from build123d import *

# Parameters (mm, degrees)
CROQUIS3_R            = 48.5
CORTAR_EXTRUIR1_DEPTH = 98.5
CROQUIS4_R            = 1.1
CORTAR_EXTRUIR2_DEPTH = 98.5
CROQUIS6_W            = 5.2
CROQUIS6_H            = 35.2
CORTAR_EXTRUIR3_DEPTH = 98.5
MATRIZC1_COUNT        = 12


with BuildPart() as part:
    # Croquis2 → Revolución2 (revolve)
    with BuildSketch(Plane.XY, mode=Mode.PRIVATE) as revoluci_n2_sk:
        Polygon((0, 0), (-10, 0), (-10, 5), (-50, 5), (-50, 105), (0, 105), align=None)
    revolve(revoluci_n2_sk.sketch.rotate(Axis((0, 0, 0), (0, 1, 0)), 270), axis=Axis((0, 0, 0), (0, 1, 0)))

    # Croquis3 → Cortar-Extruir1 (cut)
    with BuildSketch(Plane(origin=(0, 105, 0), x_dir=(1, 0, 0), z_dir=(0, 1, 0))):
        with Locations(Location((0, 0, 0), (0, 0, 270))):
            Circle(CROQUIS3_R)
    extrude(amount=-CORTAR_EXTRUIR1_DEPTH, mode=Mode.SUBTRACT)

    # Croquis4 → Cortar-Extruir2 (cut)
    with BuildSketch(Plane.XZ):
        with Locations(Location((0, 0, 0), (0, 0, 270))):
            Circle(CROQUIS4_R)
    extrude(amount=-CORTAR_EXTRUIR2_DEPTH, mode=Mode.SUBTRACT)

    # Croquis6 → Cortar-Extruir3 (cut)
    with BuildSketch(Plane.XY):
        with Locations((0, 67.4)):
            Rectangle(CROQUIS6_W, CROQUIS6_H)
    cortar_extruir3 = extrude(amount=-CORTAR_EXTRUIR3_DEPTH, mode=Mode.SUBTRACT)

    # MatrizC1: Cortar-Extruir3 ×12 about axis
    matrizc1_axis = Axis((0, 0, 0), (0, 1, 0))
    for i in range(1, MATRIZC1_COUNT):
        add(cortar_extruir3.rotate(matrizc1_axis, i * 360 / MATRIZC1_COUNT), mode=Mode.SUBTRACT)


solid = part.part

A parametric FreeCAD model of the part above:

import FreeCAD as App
import Part
import Sketcher

doc = App.newDocument("Part")
params = doc.addObject("Spreadsheet::Sheet", "Params")
for row, (alias, value) in enumerate([
    ("sketch1_width", "10 mm"),
    ("sketch1_width2", "50 mm"),
    ("sketch1_height", "105 mm"),
    ("sketch1_height2", "100 mm"),
    ("revolution_angle", "360 deg"),
    ("sketch2_diameter", "97 mm"),
    ("pocket1_length", "98.5 mm"),
    ("sketch3_diameter", "2.2 mm"),
    ("pocket2_length", "98.5 mm"),
    ("sketch4_width", "5.2 mm"),
    ("sketch4_height", "35.2 mm"),
    ("pocket3_length", "98.5 mm"),
], start=1):
    params.set(f"A{row}", alias)
    params.set(f"B{row}", "=" + value)
    params.setAlias(f"B{row}", alias)

body = doc.addObject("PartDesign::Body", "Body")

sketch1 = doc.addObject("Sketcher::SketchObject", "Sketch")
body.addObject(sketch1)
sketch1.AttachmentSupport = (doc.XY_Plane, [""])
sketch1.MapMode = "FlatFace"
sketch1.addGeometry([
    Part.LineSegment(App.Vector(-10, 0, 0), App.Vector(0, 0, 0)),
    Part.LineSegment(App.Vector(0, 0, 0), App.Vector(0, 105, 0)),
    Part.LineSegment(App.Vector(0, 105, 0), App.Vector(-50, 105, 0)),
    Part.LineSegment(App.Vector(-50, 105, 0), App.Vector(-50, 5, 0)),
    Part.LineSegment(App.Vector(-50, 5, 0), App.Vector(-10, 5, 0)),
    Part.LineSegment(App.Vector(-10, 5, 0), App.Vector(-10, 0, 0)),
], False)
sketch1.addConstraint([
    Sketcher.Constraint("Coincident", 0, 2, 1, 1),
    Sketcher.Constraint("Coincident", 1, 2, 2, 1),
    Sketcher.Constraint("Coincident", 2, 2, 3, 1),
    Sketcher.Constraint("Coincident", 3, 2, 4, 1),
    Sketcher.Constraint("Coincident", 4, 2, 5, 1),
    Sketcher.Constraint("Coincident", 5, 2, 0, 1),
    Sketcher.Constraint("Horizontal", 0),
    Sketcher.Constraint("Vertical", 1),
    Sketcher.Constraint("Horizontal", 2),
    Sketcher.Constraint("Vertical", 3),
    Sketcher.Constraint("Horizontal", 4),
    Sketcher.Constraint("Vertical", 5),
    Sketcher.Constraint("Coincident", 0, 2, -1, 1),
    Sketcher.Constraint("DistanceX", 0, 1, 0, 2, 10.0),
    Sketcher.Constraint("DistanceX", 2, 2, 2, 1, 50.0),
    Sketcher.Constraint("DistanceY", 1, 1, 1, 2, 105.0),
    Sketcher.Constraint("DistanceY", 3, 2, 3, 1, 100.0),
])
sketch1.setExpression("Constraints[13]", "Params.sketch1_width")
sketch1.setExpression("Constraints[14]", "Params.sketch1_width2")
sketch1.setExpression("Constraints[15]", "Params.sketch1_height")
sketch1.setExpression("Constraints[16]", "Params.sketch1_height2")
revolution = doc.addObject("PartDesign::Revolution", "Revolution")
body.addObject(revolution)
revolution.Profile = sketch1
revolution.ReferenceAxis = (sketch1, ["V_Axis"])
revolution.setExpression("Angle", "Params.revolution_angle")

sketch2 = doc.addObject("Sketcher::SketchObject", "Sketch001")
body.addObject(sketch2)
sketch2.AttachmentSupport = (doc.XZ_Plane, [""])
sketch2.MapMode = "FlatFace"
sketch2.AttachmentOffset = App.Placement(App.Vector(0, 0, -105), App.Rotation())
sketch2.addGeometry(Part.Circle(App.Vector(0, 0, 0), App.Vector(0, 0, 1), 48.5), False)
sketch2.addConstraint([
    Sketcher.Constraint("Coincident", 0, 3, -1, 1),
    Sketcher.Constraint("Diameter", 0, 97.0),
])
sketch2.setExpression("Constraints[1]", "Params.sketch2_diameter")
pocket1 = doc.addObject("PartDesign::Pocket", "Pocket")
body.addObject(pocket1)
pocket1.Profile = sketch2
pocket1.setExpression("Length", "Params.pocket1_length")
pocket1.Reversed = True

sketch3 = doc.addObject("Sketcher::SketchObject", "Sketch002")
body.addObject(sketch3)
sketch3.AttachmentSupport = (doc.XZ_Plane, [""])
sketch3.MapMode = "FlatFace"
sketch3.addGeometry(Part.Circle(App.Vector(0, 0, 0), App.Vector(0, 0, 1), 1.1), False)
sketch3.addConstraint([
    Sketcher.Constraint("Coincident", 0, 3, -1, 1),
    Sketcher.Constraint("Diameter", 0, 2.2),
])
sketch3.setExpression("Constraints[1]", "Params.sketch3_diameter")
pocket2 = doc.addObject("PartDesign::Pocket", "Pocket001")
body.addObject(pocket2)
pocket2.Profile = sketch3
pocket2.setExpression("Length", "Params.pocket2_length")

sketch4 = doc.addObject("Sketcher::SketchObject", "Sketch003")
body.addObject(sketch4)
sketch4.AttachmentSupport = (doc.XY_Plane, [""])
sketch4.MapMode = "FlatFace"
sketch4.addGeometry([
    Part.LineSegment(App.Vector(-2.6, 85, 0), App.Vector(-2.6, 49.8, 0)),
    Part.LineSegment(App.Vector(-2.6, 49.8, 0), App.Vector(2.6, 49.8, 0)),
    Part.LineSegment(App.Vector(2.6, 49.8, 0), App.Vector(2.6, 85, 0)),
    Part.LineSegment(App.Vector(2.6, 85, 0), App.Vector(-2.6, 85, 0)),
], False)
sketch4.addConstraint([
    Sketcher.Constraint("Coincident", 0, 2, 1, 1),
    Sketcher.Constraint("Coincident", 1, 2, 2, 1),
    Sketcher.Constraint("Coincident", 2, 2, 3, 1),
    Sketcher.Constraint("Coincident", 3, 2, 0, 1),
    Sketcher.Constraint("Vertical", 0),
    Sketcher.Constraint("Horizontal", 1),
    Sketcher.Constraint("Vertical", 2),
    Sketcher.Constraint("Horizontal", 3),
    Sketcher.Constraint("DistanceX", 1, 1, 1, 2, 5.2),
    Sketcher.Constraint("DistanceY", 0, 2, 0, 1, 35.2),
    Sketcher.Constraint("DistanceY", -1, 1, 2, 2, 85.0),
    Sketcher.Constraint("DistanceX", 0, 2, -1, 1, 2.6),
])
sketch4.setExpression("Constraints[8]", "Params.sketch4_width")
sketch4.setExpression("Constraints[9]", "Params.sketch4_height")
pocket3 = doc.addObject("PartDesign::Pocket", "Pocket002")
body.addObject(pocket3)
pocket3.Profile = sketch4
pocket3.setExpression("Length", "Params.pocket3_length")
doc.recompute()

polarpattern = doc.addObject("PartDesign::PolarPattern", "PolarPattern")
body.addObject(polarpattern)
polarpattern.Originals = [pocket3]
polarpattern.Axis = (doc.Y_Axis, [""])
polarpattern.Angle = 360
polarpattern.Occurrences = 12
body.Tip = polarpattern

doc.recompute()
